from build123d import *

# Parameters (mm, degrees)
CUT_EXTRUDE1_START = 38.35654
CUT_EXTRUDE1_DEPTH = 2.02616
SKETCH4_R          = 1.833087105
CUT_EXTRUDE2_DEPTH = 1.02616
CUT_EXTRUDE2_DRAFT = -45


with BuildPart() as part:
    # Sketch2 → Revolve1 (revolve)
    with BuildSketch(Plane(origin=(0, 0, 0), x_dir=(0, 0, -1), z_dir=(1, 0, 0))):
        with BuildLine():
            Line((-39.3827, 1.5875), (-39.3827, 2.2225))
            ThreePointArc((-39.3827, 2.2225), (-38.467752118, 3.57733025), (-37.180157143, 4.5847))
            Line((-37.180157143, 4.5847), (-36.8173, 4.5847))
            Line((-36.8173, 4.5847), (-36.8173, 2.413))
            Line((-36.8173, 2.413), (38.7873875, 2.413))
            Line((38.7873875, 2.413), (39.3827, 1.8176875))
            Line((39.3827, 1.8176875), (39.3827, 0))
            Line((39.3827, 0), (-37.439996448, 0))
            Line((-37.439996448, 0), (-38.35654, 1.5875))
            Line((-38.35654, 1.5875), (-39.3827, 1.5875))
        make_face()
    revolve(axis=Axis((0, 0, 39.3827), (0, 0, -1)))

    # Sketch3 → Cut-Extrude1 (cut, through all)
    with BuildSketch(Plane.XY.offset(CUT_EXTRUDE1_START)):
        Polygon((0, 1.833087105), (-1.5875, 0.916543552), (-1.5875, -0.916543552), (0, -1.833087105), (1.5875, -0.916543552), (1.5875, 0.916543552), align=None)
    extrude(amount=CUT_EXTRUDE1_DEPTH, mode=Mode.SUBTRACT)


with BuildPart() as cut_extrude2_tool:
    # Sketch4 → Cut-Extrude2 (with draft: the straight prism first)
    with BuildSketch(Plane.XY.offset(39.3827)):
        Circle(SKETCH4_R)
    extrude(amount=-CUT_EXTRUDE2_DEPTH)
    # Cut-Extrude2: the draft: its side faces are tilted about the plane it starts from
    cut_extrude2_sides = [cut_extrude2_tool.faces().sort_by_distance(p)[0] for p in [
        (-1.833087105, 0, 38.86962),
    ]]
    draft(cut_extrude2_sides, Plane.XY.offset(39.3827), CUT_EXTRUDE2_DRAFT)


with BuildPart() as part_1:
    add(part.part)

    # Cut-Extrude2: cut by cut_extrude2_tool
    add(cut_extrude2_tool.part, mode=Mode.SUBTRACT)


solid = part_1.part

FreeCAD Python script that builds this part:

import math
import FreeCAD as App
import Part
import Sketcher

V = App.Vector
Q = App.Units.Quantity


def faces_at(feature, points):
    """Names of the faces that lie closest to the given points."""
    faces = feature.Shape.Faces
    near = lambda p: min(range(len(faces)), key=lambda i: faces[i].distToShape(Part.Vertex(*p))[0])
    return sorted({f"Face{near(p) + 1}" for p in points})

doc = App.newDocument("Part")
params = doc.addObject("Spreadsheet::Sheet", "Params")
for row, (alias, value) in enumerate([
    ("sketch1_width", "0.025 in"),
    ("revolution_angle", "360 deg"),
    ("pad1_length", "0.0404 in"),
    ("draft_angle", "45 deg"),
], start=1):
    params.set(f"A{row}", alias)
    params.set(f"B{row}", "=" + value)
    params.setAlias(f"B{row}", alias)

body = doc.addObject("PartDesign::Body", "Body")

sketch1 = body.newObject("Sketcher::SketchObject", "Sketch")
sketch1.AttachmentSupport = (doc.getObject("YZ_Plane"), [""])
sketch1.MapMode = "FlatFace"
sketch1.addGeometry(Part.LineSegment(V(2.2225, 39.3827, 0), V(1.5875, 39.3827, 0)), False)
sketch1.addGeometry(Part.LineSegment(V(1.5875, 39.3827, 0), V(1.5875, 38.35654, 0)), False)
sketch1.addGeometry(Part.LineSegment(V(1.5875, 38.35654, 0), V(0, 37.439996, 0)), False)
sketch1.addGeometry(Part.LineSegment(V(0, 37.439996, 0), V(0, -39.3827, 0)), False)
sketch1.addGeometry(Part.LineSegment(V(0, -39.3827, 0), V(1.817687, -39.3827, 0)), False)
sketch1.addGeometry(Part.LineSegment(V(1.817687, -39.3827, 0), V(2.413, -38.787388, 0)), False)
sketch1.addGeometry(Part.LineSegment(V(2.413, -38.787388, 0), V(2.413, 36.8173, 0)), False)
sketch1.addGeometry(Part.LineSegment(V(2.413, 36.8173, 0), V(4.5847, 36.8173, 0)), False)
sketch1.addGeometry(Part.LineSegment(V(4.5847, 36.8173, 0), V(4.5847, 37.180157, 0)), False)
sketch1.addGeometry(Part.ArcOfCircle(Part.Circle(V(0, 34.63111, 0), V(0, 0, 1), 5.245676), math.radians(29.073623), math.radians(64.932715)), False)
sketch1.addConstraint(Sketcher.Constraint("Coincident", 0, 2, 1, 1))
sketch1.addConstraint(Sketcher.Constraint("Coincident", 1, 2, 2, 1))
sketch1.addConstraint(Sketcher.Constraint("Coincident", 2, 2, 3, 1))
sketch1.addConstraint(Sketcher.Constraint("Coincident", 3, 2, 4, 1))
sketch1.addConstraint(Sketcher.Constraint("Coincident", 4, 2, 5, 1))
sketch1.addConstraint(Sketcher.Constraint("Coincident", 5, 2, 6, 1))
sketch1.addConstraint(Sketcher.Constraint("Coincident", 6, 2, 7, 1))
sketch1.addConstraint(Sketcher.Constraint("Coincident", 7, 2, 8, 1))
sketch1.addConstraint(Sketcher.Constraint("Coincident", 8, 2, 9, 1))
sketch1.addConstraint(Sketcher.Constraint("Coincident", 9, 2, 0, 1))
sketch1.addConstraint(Sketcher.Constraint("Horizontal", 0))
sketch1.addConstraint(Sketcher.Constraint("Vertical", 1))
sketch1.addConstraint(Sketcher.Constraint("Vertical", 3))
sketch1.addConstraint(Sketcher.Constraint("Horizontal", 4))
sketch1.addConstraint(Sketcher.Constraint("Vertical", 6))
sketch1.addConstraint(Sketcher.Constraint("Horizontal", 7))
sketch1.addConstraint(Sketcher.Constraint("Vertical", 8))
sketch1.addConstraint(Sketcher.Constraint("PointOnObject", 9, 3, -2))
sketch1.addConstraint(Sketcher.Constraint("PointOnObject", 2, 2, -2))
sketch1.addConstraint(Sketcher.Constraint("Angle", 2, Q("-150 deg")))
sketch1.addConstraint(Sketcher.Constraint("Angle", 5, Q("45 deg")))
sketch1.addConstraint(Sketcher.Constraint("DistanceX", 0, 2, 0, 1, Q("0.025 in")))
sketch1.addConstraint(Sketcher.Constraint("DistanceX", 7, 1, 7, 2, Q("0.0855 in")))
sketch1.addConstraint(Sketcher.Constraint("DistanceY", 1, 2, 1, 1, Q("0.0404 in")))
sketch1.addConstraint(Sketcher.Constraint("DistanceX", -1, 1, 0, 2, Q("0.0625 in")))
sketch1.addConstraint(Sketcher.Constraint("DistanceX", -1, 1, 5, 2, Q("0.095 in")))
sketch1.addConstraint(Sketcher.Constraint("DistanceY", 3, 2, 0, 2, Q("3.101 in")))
sketch1.addConstraint(Sketcher.Constraint("DistanceY", 6, 2, 0, 2, Q("0.101 in")))
sketch1.addConstraint(Sketcher.Constraint("DistanceY", -1, 1, 0, 2, Q("1.5505 in")))
sketch1.addConstraint(Sketcher.Constraint("Radius", 9, Q("5.245676 mm")))
sketch1.addConstraint(Sketcher.Constraint("Distance", 5, Q("0.841899 mm")))
sketch1.setExpression("Constraints[21]", "Params.sketch1_width")
revolution = body.newObject("PartDesign::Revolution", "Revolution")
revolution.Profile = sketch1
revolution.ReferenceAxis = (sketch1, ["V_Axis"])
revolution.setExpression("Angle", "Params.revolution_angle")

sketch2 = body.newObject("Sketcher::SketchObject", "Sketch001")
sketch2.AttachmentSupport = (doc.getObject("XY_Plane"), [""])
sketch2.MapMode = "FlatFace"
sketch2.AttachmentOffset = App.Placement(V(0, 0, 1.5101 * 25.4), App.Rotation())
sketch2.addGeometry(Part.LineSegment(V(0, 1.833087, 0), V(-1.5875, 0.916544, 0)), False)
sketch2.addGeometry(Part.LineSegment(V(-1.5875, 0.916544, 0), V(-1.5875, -0.916544, 0)), False)
sketch2.addGeometry(Part.LineSegment(V(-1.5875, -0.916544, 0), V(0, -1.833087, 0)), False)
sketch2.addGeometry(Part.LineSegment(V(0, -1.833087, 0), V(1.5875, -0.916544, 0)), False)
sketch2.addGeometry(Part.LineSegment(V(1.5875, -0.916544, 0), V(1.5875, 0.916544, 0)), False)
sketch2.addGeometry(Part.LineSegment(V(1.5875, 0.916544, 0), V(0, 1.833087, 0)), False)
sketch2.addConstraint(Sketcher.Constraint("Coincident", 0, 2, 1, 1))
sketch2.addConstraint(Sketcher.Constraint("Coincident", 1, 2, 2, 1))
sketch2.addConstraint(Sketcher.Constraint("Coincident", 2, 2, 3, 1))
sketch2.addConstraint(Sketcher.Constraint("Coincident", 3, 2, 4, 1))
sketch2.addConstraint(Sketcher.Constraint("Coincident", 4, 2, 5, 1))
sketch2.addConstraint(Sketcher.Constraint("Coincident", 5, 2, 0, 1))
sketch2.addConstraint(Sketcher.Constraint("Vertical", 1))
sketch2.addConstraint(Sketcher.Constraint("Vertical", 4))
sketch2.addConstraint(Sketcher.Constraint("Symmetric", 0, 2, 3, 2, -1, 1))
sketch2.addConstraint(Sketcher.Constraint("Symmetric", 2, 2, 5, 2, -1, 1))
sketch2.addConstraint(Sketcher.Constraint("PointOnObject", 2, 2, -2))
sketch2.addConstraint(Sketcher.Constraint("Parallel", 2, 5))
sketch2.addConstraint(Sketcher.Constraint("Horizontal", 1, 2, 3, 2))
sketch2.addConstraint(Sketcher.Constraint("Angle", 0, Q("-150 deg")))
sketch2.addConstraint(Sketcher.Constraint("DistanceX", 0, 2, -1, 1, Q("0.0625 in")))
sketch2.addConstraint(Sketcher.Constraint("DistanceY", 1, 2, 1, 1, Q("1.833087 mm")))
pocket1 = body.newObject("PartDesign::Pocket", "Pocket")
pocket1.Profile = sketch2
pocket1.Type = "ThroughAll"
pocket1.Reversed = True
body2 = doc.addObject("PartDesign::Body", "Body001")

sketch3 = body2.newObject("Sketcher::SketchObject", "Sketch002")
sketch3.AttachmentSupport = (doc.getObject("XY_Plane001"), [""])
sketch3.MapMode = "FlatFace"
sketch3.AttachmentOffset = App.Placement(V(0, 0, 1.5505 * 25.4), App.Rotation())
sketch3.addGeometry(Part.Circle(V(0, 0, 0), V(0, 0, 1), 1.833087), False)
sketch3.addConstraint(Sketcher.Constraint("Coincident", 0, 3, -1, 1))
sketch3.addConstraint(Sketcher.Constraint("Diameter", 0, Q("3.666174 mm")))
pad1 = body2.newObject("PartDesign::Pad", "Pad")
pad1.Profile = sketch3
pad1.setExpression("Length", "Params.pad1_length")
pad1.Reversed = True
doc.recompute()

datumplane = body2.newObject("PartDesign::Plane", "DatumPlane")
datumplane.AttachmentSupport = (doc.getObject("XY_Plane001"), [""])
datumplane.MapMode = "FlatFace"
datumplane.AttachmentOffset = App.Placement(V(0, 0, 1.5505 * 25.4), App.Rotation())
draft = body2.newObject("PartDesign::Draft", "Draft")
draft.Base = (pad1, faces_at(pad1, [(-1.833, 0, 38.87)]))
draft.NeutralPlane = (datumplane, [""])
draft.setExpression("Angle", "Params.draft_angle")
draft.Reversed = True
doc.recompute()

boolean = body.newObject("PartDesign::Boolean", "Boolean")
boolean.Type = "Cut"
boolean.addObjects([body2])

doc.recompute()
